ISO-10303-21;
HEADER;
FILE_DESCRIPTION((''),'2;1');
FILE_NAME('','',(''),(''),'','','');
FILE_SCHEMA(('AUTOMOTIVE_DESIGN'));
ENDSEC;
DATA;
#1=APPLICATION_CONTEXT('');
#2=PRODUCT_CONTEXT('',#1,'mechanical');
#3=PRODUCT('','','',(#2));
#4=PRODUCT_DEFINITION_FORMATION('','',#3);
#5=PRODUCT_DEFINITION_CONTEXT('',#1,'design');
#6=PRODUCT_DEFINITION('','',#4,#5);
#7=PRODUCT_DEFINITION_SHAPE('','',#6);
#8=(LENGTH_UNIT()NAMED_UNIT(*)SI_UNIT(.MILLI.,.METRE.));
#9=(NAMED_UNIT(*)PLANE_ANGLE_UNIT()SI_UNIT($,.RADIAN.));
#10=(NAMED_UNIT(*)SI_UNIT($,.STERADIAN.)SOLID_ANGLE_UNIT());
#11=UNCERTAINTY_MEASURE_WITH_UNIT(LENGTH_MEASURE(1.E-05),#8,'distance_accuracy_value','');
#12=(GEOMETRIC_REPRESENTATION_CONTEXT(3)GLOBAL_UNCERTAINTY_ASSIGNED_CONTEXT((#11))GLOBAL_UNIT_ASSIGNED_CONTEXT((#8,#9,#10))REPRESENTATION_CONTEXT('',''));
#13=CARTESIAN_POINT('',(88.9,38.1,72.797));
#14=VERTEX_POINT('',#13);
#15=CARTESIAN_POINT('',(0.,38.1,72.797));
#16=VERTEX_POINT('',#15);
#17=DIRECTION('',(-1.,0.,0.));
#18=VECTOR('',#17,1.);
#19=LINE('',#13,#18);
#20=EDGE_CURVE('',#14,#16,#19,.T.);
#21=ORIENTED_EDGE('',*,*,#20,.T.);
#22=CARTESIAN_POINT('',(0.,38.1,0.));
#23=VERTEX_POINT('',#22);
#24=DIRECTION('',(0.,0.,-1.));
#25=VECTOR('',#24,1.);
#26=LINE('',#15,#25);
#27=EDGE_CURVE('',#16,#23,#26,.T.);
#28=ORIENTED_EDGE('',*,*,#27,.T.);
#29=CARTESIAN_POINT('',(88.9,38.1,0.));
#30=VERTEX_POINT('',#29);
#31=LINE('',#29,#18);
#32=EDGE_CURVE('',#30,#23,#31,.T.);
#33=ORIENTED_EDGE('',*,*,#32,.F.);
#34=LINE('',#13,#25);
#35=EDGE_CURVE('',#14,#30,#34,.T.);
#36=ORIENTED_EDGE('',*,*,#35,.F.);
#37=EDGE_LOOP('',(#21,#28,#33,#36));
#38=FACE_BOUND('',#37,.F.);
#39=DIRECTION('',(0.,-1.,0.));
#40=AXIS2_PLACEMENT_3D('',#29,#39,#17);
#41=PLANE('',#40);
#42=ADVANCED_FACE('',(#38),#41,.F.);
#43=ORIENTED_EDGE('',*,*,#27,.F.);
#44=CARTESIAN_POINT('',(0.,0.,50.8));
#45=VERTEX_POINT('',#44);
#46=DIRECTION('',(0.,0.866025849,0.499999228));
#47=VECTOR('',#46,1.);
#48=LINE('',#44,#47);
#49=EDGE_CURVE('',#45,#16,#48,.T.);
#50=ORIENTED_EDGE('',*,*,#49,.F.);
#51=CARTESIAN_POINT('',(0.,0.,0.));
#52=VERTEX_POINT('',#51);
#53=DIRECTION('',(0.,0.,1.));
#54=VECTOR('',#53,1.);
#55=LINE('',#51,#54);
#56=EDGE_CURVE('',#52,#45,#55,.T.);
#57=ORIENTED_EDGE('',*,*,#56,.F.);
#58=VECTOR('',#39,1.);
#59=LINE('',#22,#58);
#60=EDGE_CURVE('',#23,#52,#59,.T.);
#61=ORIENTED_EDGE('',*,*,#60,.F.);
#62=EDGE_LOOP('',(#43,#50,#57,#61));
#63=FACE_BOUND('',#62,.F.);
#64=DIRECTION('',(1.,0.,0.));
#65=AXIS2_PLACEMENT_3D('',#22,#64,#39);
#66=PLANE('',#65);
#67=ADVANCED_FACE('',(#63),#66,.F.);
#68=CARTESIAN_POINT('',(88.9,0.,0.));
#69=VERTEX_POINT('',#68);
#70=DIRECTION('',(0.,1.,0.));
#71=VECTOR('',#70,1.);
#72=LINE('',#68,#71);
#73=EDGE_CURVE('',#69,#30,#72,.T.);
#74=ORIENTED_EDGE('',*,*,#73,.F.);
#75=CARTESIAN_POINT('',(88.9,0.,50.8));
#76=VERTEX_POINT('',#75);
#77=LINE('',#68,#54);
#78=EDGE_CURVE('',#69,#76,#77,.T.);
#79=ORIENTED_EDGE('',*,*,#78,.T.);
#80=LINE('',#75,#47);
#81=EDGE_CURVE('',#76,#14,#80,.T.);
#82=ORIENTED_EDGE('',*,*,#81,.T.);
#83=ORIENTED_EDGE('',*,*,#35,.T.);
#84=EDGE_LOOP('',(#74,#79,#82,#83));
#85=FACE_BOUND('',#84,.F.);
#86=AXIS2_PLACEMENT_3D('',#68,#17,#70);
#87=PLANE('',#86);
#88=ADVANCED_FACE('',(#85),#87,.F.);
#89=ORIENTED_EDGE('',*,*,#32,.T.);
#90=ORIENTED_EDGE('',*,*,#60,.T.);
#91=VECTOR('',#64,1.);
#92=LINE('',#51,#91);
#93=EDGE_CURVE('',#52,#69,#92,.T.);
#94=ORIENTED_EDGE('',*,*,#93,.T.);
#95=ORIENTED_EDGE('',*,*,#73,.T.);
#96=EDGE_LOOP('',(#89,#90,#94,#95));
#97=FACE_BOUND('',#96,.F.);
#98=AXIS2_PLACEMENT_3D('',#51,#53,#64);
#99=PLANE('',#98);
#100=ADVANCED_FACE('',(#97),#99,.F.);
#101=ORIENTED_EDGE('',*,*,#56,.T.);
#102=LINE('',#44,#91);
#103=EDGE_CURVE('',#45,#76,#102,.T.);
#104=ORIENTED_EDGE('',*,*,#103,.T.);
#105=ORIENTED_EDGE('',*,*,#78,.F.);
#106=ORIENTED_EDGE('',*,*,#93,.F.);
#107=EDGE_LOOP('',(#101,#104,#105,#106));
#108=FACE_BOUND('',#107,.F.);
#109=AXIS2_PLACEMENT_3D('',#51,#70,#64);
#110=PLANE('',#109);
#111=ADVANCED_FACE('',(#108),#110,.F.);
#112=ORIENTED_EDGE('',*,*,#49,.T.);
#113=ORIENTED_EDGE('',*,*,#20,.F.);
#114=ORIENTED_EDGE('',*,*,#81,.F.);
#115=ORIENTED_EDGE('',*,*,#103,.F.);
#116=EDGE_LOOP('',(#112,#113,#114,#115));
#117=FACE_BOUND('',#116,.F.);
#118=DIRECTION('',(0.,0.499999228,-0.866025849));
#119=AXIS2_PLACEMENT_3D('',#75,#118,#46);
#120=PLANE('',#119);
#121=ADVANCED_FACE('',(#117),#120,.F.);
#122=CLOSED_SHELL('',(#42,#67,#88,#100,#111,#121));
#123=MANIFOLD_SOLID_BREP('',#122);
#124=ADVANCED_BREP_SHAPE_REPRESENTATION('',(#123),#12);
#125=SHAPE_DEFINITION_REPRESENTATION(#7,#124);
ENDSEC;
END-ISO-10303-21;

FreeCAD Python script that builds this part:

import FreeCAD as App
import Part
import Sketcher

V = App.Vector
Q = App.Units.Quantity


def add_polygon(sketch, points):
    """Adds a closed chain of lines whose ends are joined by coincident constraints."""
    first, n = sketch.GeometryCount, len(points)
    for a, b in zip(points, points[1:] + points[:1]):
        sketch.addGeometry(Part.LineSegment(App.Vector(*a, 0), App.Vector(*b, 0)), False)
    for i in range(n):
        sketch.addConstraint(Sketcher.Constraint("Coincident", first + i, 2, first + (i + 1) % n, 1))

doc = App.newDocument("Part")
body = doc.addObject("PartDesign::Body", "Body")

# Sketch on XY plane
sketch1 = body.newObject("Sketcher::SketchObject", "Sketch")
sketch1.AttachmentSupport = (doc.getObject("XY_Plane"), [""])
sketch1.MapMode = "FlatFace"
add_polygon(sketch1, [(0, 38.1), (0, 0), (88.9, 0), (88.9, 38.1)])  # lines 0-3
sketch1.addConstraint([
    Sketcher.Constraint("Vertical", 0),
    Sketcher.Constraint("Horizontal", 1),
    Sketcher.Constraint("Vertical", 2),
    Sketcher.Constraint("Horizontal", 3),
    Sketcher.Constraint("Coincident", 0, 2, -1, 1),
    Sketcher.Constraint("DistanceX", 1, 1, 1, 2, Q("3.5 in")),
    Sketcher.Constraint("DistanceY", 0, 2, 0, 1, Q("1.5 in")),
])
pad1 = body.newObject("PartDesign::Pad", "Pad")
pad1.Profile = sketch1
pad1.Length = Q("2 in")

# Sketch on YZ plane
sketch2 = body.newObject("Sketcher::SketchObject", "Sketch001")
sketch2.AttachmentSupport = (doc.getObject("YZ_Plane"), [""])
sketch2.MapMode = "FlatFace"
sketch2.AttachmentOffset = App.Placement(V(0, 0, 3.5 * 25.4), App.Rotation())
add_polygon(sketch2, [(38.1, 72.797), (0, 50.8), (38.1, 50.8)])  # lines 0-2
sketch2.addConstraint([
    Sketcher.Constraint("Horizontal", 1),
    Sketcher.Constraint("Vertical", 2),
    Sketcher.Constraint("PointOnObject", 0, 2, -2),
    Sketcher.Constraint("DistanceX", 1, 1, 1, 2, Q("1.5 in")),
    Sketcher.Constraint("DistanceY", -1, 1, 0, 2, Q("2 in")),
    Sketcher.Constraint("Angle", 0, Q("-150 deg")),
])
pad2 = body.newObject("PartDesign::Pad", "Pad001")
pad2.Profile = sketch2
pad2.Length = Q("3.5 in")
pad2.Reversed = True

doc.recompute()
